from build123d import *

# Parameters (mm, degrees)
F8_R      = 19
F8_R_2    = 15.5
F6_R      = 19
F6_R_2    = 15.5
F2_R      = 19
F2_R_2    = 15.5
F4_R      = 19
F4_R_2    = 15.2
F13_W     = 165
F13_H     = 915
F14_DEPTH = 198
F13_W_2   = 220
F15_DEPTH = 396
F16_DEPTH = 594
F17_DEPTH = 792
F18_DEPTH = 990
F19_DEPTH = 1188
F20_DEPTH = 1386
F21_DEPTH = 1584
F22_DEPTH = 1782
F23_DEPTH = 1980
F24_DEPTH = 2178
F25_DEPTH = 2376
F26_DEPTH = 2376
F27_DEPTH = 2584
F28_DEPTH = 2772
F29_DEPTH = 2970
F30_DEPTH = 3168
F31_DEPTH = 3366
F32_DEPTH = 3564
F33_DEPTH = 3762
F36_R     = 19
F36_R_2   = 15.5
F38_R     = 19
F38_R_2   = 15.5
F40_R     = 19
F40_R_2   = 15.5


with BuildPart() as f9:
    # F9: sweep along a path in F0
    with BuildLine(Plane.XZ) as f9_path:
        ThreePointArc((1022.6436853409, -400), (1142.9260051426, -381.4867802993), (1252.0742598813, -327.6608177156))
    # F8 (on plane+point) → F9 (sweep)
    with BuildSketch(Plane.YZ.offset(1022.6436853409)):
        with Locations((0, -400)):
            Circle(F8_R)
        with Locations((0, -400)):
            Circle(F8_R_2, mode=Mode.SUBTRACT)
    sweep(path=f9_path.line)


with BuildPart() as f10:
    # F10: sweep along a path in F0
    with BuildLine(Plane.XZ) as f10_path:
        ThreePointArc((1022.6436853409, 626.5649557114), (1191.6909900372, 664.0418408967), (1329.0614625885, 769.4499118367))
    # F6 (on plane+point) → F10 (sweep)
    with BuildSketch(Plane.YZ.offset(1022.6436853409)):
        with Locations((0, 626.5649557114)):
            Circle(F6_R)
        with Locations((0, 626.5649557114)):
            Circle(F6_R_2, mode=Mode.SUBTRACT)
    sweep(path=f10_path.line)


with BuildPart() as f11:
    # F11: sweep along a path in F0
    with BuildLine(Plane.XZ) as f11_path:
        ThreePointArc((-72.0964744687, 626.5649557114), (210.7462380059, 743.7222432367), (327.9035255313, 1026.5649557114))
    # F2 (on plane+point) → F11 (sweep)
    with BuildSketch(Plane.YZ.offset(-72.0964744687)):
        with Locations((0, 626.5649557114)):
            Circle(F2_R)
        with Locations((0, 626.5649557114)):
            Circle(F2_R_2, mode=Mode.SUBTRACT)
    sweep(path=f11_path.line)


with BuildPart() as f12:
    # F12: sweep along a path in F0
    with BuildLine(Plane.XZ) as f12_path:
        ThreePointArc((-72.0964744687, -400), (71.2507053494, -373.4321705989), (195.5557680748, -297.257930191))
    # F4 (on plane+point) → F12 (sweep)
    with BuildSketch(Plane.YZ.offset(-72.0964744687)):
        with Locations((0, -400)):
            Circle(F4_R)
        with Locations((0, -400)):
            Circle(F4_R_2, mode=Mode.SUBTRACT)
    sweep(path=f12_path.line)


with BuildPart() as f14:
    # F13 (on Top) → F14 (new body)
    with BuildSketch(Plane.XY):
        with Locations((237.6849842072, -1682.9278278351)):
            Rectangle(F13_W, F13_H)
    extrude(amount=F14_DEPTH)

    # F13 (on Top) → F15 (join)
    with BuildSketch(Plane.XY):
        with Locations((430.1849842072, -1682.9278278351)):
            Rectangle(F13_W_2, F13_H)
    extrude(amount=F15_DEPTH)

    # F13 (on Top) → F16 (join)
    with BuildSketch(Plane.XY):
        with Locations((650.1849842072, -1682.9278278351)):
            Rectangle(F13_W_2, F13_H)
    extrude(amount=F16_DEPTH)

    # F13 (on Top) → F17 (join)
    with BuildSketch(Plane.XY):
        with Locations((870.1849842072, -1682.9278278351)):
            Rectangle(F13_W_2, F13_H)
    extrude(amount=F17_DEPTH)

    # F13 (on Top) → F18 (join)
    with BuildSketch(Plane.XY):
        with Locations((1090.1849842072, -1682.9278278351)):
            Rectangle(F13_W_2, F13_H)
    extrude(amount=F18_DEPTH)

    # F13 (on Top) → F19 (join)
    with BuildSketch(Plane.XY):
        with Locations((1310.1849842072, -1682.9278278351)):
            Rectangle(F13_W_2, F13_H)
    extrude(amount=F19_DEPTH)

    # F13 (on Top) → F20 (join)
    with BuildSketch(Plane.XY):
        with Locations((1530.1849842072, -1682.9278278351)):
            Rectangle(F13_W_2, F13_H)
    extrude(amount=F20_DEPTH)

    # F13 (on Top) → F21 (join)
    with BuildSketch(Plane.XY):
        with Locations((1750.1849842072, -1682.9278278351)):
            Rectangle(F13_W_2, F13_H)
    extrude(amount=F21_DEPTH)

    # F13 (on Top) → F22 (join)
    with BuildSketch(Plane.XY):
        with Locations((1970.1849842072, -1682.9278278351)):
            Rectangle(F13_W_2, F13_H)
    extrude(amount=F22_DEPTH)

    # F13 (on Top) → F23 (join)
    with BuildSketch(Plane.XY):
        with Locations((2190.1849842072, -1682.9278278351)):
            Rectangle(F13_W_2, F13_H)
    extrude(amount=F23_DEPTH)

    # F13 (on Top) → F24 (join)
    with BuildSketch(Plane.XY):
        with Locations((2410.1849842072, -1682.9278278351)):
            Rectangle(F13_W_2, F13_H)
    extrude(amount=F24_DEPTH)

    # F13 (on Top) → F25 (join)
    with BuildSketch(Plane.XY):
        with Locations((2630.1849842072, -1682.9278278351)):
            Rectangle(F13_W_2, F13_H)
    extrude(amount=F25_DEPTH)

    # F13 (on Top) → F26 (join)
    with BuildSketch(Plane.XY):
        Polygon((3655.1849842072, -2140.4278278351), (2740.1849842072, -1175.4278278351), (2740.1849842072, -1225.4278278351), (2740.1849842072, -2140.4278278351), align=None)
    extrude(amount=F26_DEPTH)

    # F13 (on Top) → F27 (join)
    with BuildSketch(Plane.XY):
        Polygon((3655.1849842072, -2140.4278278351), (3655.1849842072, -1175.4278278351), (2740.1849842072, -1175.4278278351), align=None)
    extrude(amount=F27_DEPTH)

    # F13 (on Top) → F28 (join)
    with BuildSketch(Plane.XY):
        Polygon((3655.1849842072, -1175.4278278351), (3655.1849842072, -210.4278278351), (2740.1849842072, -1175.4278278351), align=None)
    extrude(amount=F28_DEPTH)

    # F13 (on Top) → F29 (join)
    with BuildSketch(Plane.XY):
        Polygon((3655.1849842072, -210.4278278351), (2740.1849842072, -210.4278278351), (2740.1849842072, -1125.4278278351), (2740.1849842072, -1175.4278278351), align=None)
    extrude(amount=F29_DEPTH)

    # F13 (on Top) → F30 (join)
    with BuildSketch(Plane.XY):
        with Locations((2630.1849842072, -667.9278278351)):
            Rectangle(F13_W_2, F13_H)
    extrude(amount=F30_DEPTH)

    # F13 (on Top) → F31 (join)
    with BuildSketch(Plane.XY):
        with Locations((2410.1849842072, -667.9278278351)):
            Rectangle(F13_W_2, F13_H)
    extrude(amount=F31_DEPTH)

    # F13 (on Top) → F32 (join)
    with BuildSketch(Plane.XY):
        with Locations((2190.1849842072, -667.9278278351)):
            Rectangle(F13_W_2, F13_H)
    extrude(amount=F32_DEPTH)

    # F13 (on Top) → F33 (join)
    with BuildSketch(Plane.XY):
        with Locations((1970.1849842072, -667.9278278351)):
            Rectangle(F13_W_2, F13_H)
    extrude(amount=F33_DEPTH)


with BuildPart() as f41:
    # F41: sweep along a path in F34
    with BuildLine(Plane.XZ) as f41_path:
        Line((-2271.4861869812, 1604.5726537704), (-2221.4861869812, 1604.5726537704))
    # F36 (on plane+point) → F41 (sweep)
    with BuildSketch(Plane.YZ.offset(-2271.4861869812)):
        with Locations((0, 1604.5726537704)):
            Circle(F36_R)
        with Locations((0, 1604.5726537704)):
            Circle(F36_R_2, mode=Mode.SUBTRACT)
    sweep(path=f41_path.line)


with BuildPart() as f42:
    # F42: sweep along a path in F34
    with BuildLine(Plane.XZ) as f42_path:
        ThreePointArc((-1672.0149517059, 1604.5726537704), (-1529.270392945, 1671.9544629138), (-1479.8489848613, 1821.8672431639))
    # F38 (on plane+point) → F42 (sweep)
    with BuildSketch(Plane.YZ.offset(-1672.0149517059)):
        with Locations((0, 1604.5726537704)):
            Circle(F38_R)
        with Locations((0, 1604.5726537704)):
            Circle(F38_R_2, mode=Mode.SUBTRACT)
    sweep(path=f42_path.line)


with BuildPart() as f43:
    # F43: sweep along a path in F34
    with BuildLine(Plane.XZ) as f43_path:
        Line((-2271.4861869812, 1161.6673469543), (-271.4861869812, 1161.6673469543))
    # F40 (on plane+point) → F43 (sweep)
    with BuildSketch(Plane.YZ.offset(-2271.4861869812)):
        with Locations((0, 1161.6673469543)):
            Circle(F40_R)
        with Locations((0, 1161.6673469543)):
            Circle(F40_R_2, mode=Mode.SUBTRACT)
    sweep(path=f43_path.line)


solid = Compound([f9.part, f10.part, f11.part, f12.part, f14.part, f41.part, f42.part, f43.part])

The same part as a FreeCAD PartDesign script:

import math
import FreeCAD as App
import Part
import Sketcher
from FreeCAD import Vector

doc = App.newDocument("Part")
body = doc.addObject("PartDesign::Body", "Body")

sketch1 = body.newObject("Sketcher::SketchObject", "Sketch")
sketch1.AttachmentSupport = (doc.getObject("YZ_Plane"), [""])
sketch1.MapMode = "FlatFace"
sketch1.AttachmentOffset = App.Placement(Vector(0, 0, 1022.643685), App.Rotation())
sketch1.addGeometry(Part.Circle(Vector(0, -400, 0), Vector(0, 0, 1), 19), False)
sketch1.addGeometry(Part.Circle(Vector(0, -400, 0), Vector(0, 0, 1), 15.5), False)
sketch1.addConstraint(Sketcher.Constraint("Coincident", 1, 3, 0, 3))
sketch1.addConstraint(Sketcher.Constraint("PointOnObject", 0, 3, -2))
sketch1.addConstraint(Sketcher.Constraint("Diameter", 0, 38.0))
sketch1.addConstraint(Sketcher.Constraint("Diameter", 1, 31.0))
sketch1.addConstraint(Sketcher.Constraint("DistanceY", 0, 3, -1, 1, 400.0))

sketch2 = body.newObject("Sketcher::SketchObject", "Sketch001")
sketch2.AttachmentSupport = (doc.getObject("XZ_Plane"), [""])
sketch2.MapMode = "FlatFace"
sketch2.addGeometry(Part.ArcOfCircle(Part.Circle(Vector(1022.643685, 0, 0), Vector(0, 0, 1), 400), math.radians(-90), math.radians(-55)), False)
sketch2.addConstraint(Sketcher.Constraint("PointOnObject", 0, 3, -1))
sketch2.addConstraint(Sketcher.Constraint("Radius", 0, 400.0))
sketch2.addConstraint(Sketcher.Constraint("DistanceX", -1, 1, 0, 2, 1252.07426))
sketch2.addConstraint(Sketcher.Constraint("DistanceX", -1, 1, 0, 3, 1022.643685))
sketch2.addConstraint(Sketcher.Constraint("DistanceX", -1, 1, 0, 1, 1022.643685))
doc.recompute()

additivepipe = body.newObject("PartDesign::AdditivePipe", "AdditivePipe")
additivepipe.Profile = sketch1
additivepipe.Spine = (sketch2, ["Edge1"])
body2 = doc.addObject("PartDesign::Body", "Body001")

sketch3 = body2.newObject("Sketcher::SketchObject", "Sketch002")
sketch3.AttachmentSupport = (doc.getObject("YZ_Plane001"), [""])
sketch3.MapMode = "FlatFace"
sketch3.AttachmentOffset = App.Placement(Vector(0, 0, 1022.643685), App.Rotation())
sketch3.addGeometry(Part.Circle(Vector(0, 626.564956, 0), Vector(0, 0, 1), 19), False)
sketch3.addGeometry(Part.Circle(Vector(0, 626.564956, 0), Vector(0, 0, 1), 15.5), False)
sketch3.addConstraint(Sketcher.Constraint("Coincident", 1, 3, 0, 3))
sketch3.addConstraint(Sketcher.Constraint("PointOnObject", 0, 3, -2))
sketch3.addConstraint(Sketcher.Constraint("Diameter", 0, 38.0))
sketch3.addConstraint(Sketcher.Constraint("Diameter", 1, 31.0))
sketch3.addConstraint(Sketcher.Constraint("DistanceY", -1, 1, 0, 3, 626.564956))

sketch4 = body2.newObject("Sketcher::SketchObject", "Sketch003")
sketch4.AttachmentSupport = (doc.getObject("XZ_Plane001"), [""])
sketch4.MapMode = "FlatFace"
sketch4.addGeometry(Part.ArcOfCircle(Part.Circle(Vector(1022.643685, 1026.564956, 0), Vector(0, 0, 1), 400), math.radians(-90), math.radians(-40)), False)
sketch4.addConstraint(Sketcher.Constraint("Radius", 0, 400.0))
sketch4.addConstraint(Sketcher.Constraint("DistanceY", -1, 1, 0, 2, 769.449912))
sketch4.addConstraint(Sketcher.Constraint("DistanceX", -1, 1, 0, 3, 1022.643685))
sketch4.addConstraint(Sketcher.Constraint("DistanceY", -1, 1, 0, 3, 1026.564956))
sketch4.addConstraint(Sketcher.Constraint("DistanceX", -1, 1, 0, 1, 1022.643685))
doc.recompute()

additivepipe2 = body2.newObject("PartDesign::AdditivePipe", "AdditivePipe001")
additivepipe2.Profile = sketch3
additivepipe2.Spine = (sketch4, ["Edge1"])
body3 = doc.addObject("PartDesign::Body", "Body002")

sketch5 = body3.newObject("Sketcher::SketchObject", "Sketch004")
sketch5.AttachmentSupport = (doc.getObject("YZ_Plane002"), [""])
sketch5.MapMode = "FlatFace"
sketch5.AttachmentOffset = App.Placement(Vector(0, 0, -72.096474), App.Rotation())
sketch5.addGeometry(Part.Circle(Vector(0, 626.564956, 0), Vector(0, 0, 1), 19), False)
sketch5.addGeometry(Part.Circle(Vector(0, 626.564956, 0), Vector(0, 0, 1), 15.5), False)
sketch5.addConstraint(Sketcher.Constraint("Coincident", 1, 3, 0, 3))
sketch5.addConstraint(Sketcher.Constraint("PointOnObject", 0, 3, -2))
sketch5.addConstraint(Sketcher.Constraint("Diameter", 0, 38.0))
sketch5.addConstraint(Sketcher.Constraint("Diameter", 1, 31.0))
sketch5.addConstraint(Sketcher.Constraint("DistanceY", -1, 1, 0, 3, 626.564956))

sketch6 = body3.newObject("Sketcher::SketchObject", "Sketch005")
sketch6.AttachmentSupport = (doc.getObject("XZ_Plane002"), [""])
sketch6.MapMode = "FlatFace"
sketch6.addGeometry(Part.ArcOfCircle(Part.Circle(Vector(-72.096474, 1026.564956, 0), Vector(0, 0, 1), 400), math.radians(-90), math.radians(0)), False)
sketch6.addConstraint(Sketcher.Constraint("Radius", 0, 400.0))
sketch6.addConstraint(Sketcher.Constraint("DistanceX", 0, 1, 0, 2, 400.0))
sketch6.addConstraint(Sketcher.Constraint("DistanceY", 0, 1, 0, 2, 400.0))
sketch6.addConstraint(Sketcher.Constraint("DistanceX", 0, 3, -1, 1, 72.096474))
sketch6.addConstraint(Sketcher.Constraint("DistanceY", -1, 1, 0, 3, 1026.564956))
doc.recompute()

additivepipe3 = body3.newObject("PartDesign::AdditivePipe", "AdditivePipe002")
additivepipe3.Profile = sketch5
additivepipe3.Spine = (sketch6, ["Edge1"])
body4 = doc.addObject("PartDesign::Body", "Body003")

sketch7 = body4.newObject("Sketcher::SketchObject", "Sketch006")
sketch7.AttachmentSupport = (doc.getObject("YZ_Plane003"), [""])
sketch7.MapMode = "FlatFace"
sketch7.AttachmentOffset = App.Placement(Vector(0, 0, -72.096474), App.Rotation())
sketch7.addGeometry(Part.Circle(Vector(0, -400, 0), Vector(0, 0, 1), 19), False)
sketch7.addGeometry(Part.Circle(Vector(0, -400, 0), Vector(0, 0, 1), 15.2), False)
sketch7.addConstraint(Sketcher.Constraint("Coincident", 1, 3, 0, 3))
sketch7.addConstraint(Sketcher.Constraint("PointOnObject", 0, 3, -2))
sketch7.addConstraint(Sketcher.Constraint("Diameter", 0, 38.0))
sketch7.addConstraint(Sketcher.Constraint("Diameter", 1, 30.4))
sketch7.addConstraint(Sketcher.Constraint("DistanceY", 0, 3, -1, 1, 400.0))

sketch8 = body4.newObject("Sketcher::SketchObject", "Sketch007")
sketch8.AttachmentSupport = (doc.getObject("XZ_Plane003"), [""])
sketch8.MapMode = "FlatFace"
sketch8.addGeometry(Part.ArcOfCircle(Part.Circle(Vector(-72.096474, 0, 0), Vector(0, 0, 1), 400), math.radians(-90), math.radians(-48)), False)
sketch8.addConstraint(Sketcher.Constraint("PointOnObject", 0, 3, -1))
sketch8.addConstraint(Sketcher.Constraint("Radius", 0, 400.0))
sketch8.addConstraint(Sketcher.Constraint("DistanceX", -1, 1, 0, 2, 195.555768))
sketch8.addConstraint(Sketcher.Constraint("DistanceY", 0, 2, -1, 1, 297.25793))
sketch8.addConstraint(Sketcher.Constraint("DistanceX", 0, 1, -1, 1, 72.096474))
doc.recompute()

additivepipe4 = body4.newObject("PartDesign::AdditivePipe", "AdditivePipe003")
additivepipe4.Profile = sketch7
additivepipe4.Spine = (sketch8, ["Edge1"])
body5 = doc.addObject("PartDesign::Body", "Body004")

sketch9 = body5.newObject("Sketcher::SketchObject", "Sketch008")
sketch9.AttachmentSupport = (doc.getObject("XY_Plane004"), [""])
sketch9.MapMode = "FlatFace"
sketch9.addGeometry(Part.LineSegment(Vector(155.184984, -1225.427828, 0), Vector(155.184984, -2140.427828, 0)), False)
sketch9.addGeometry(Part.LineSegment(Vector(155.184984, -2140.427828, 0), Vector(320.184984, -2140.427828, 0)), False)
sketch9.addGeometry(Part.LineSegment(Vector(320.184984, -2140.427828, 0), Vector(320.184984, -1225.427828, 0)), False)
sketch9.addGeometry(Part.LineSegment(Vector(320.184984, -1225.427828, 0), Vector(155.184984, -1225.427828, 0)), False)
sketch9.addConstraint(Sketcher.Constraint("Coincident", 0, 2, 1, 1))
sketch9.addConstraint(Sketcher.Constraint("Coincident", 1, 2, 2, 1))
sketch9.addConstraint(Sketcher.Constraint("Coincident", 2, 2, 3, 1))
sketch9.addConstraint(Sketcher.Constraint("Coincident", 3, 2, 0, 1))
sketch9.addConstraint(Sketcher.Constraint("Vertical", 0))
sketch9.addConstraint(Sketcher.Constraint("Horizontal", 1))
sketch9.addConstraint(Sketcher.Constraint("Vertical", 2))
sketch9.addConstraint(Sketcher.Constraint("Horizontal", 3))
sketch9.addConstraint(Sketcher.Constraint("DistanceX", 1, 1, 1, 2, 165.0))
sketch9.addConstraint(Sketcher.Constraint("DistanceY", 0, 2, 0, 1, 915.0))
sketch9.addConstraint(Sketcher.Constraint("DistanceX", -1, 1, 0, 2, 155.184984))
sketch9.addConstraint(Sketcher.Constraint("DistanceY", 0, 2, -1, 1, 2140.427828))
pad1 = body5.newObject("PartDesign::Pad", "Pad")
pad1.Profile = sketch9
pad1.Length = 198

sketch10 = body5.newObject("Sketcher::SketchObject", "Sketch009")
sketch10.AttachmentSupport = (doc.getObject("XY_Plane004"), [""])
sketch10.MapMode = "FlatFace"
sketch10.addGeometry(Part.LineSegment(Vector(320.184984, -1225.427828, 0), Vector(320.184984, -2140.427828, 0)), False)
sketch10.addGeometry(Part.LineSegment(Vector(320.184984, -2140.427828, 0), Vector(540.184984, -2140.427828, 0)), False)
sketch10.addGeometry(Part.LineSegment(Vector(540.184984, -2140.427828, 0), Vector(540.184984, -1225.427828, 0)), False)
sketch10.addGeometry(Part.LineSegment(Vector(540.184984, -1225.427828, 0), Vector(320.184984, -1225.427828, 0)), False)
sketch10.addConstraint(Sketcher.Constraint("Coincident", 0, 2, 1, 1))
sketch10.addConstraint(Sketcher.Constraint("Coincident", 1, 2, 2, 1))
sketch10.addConstraint(Sketcher.Constraint("Coincident", 2, 2, 3, 1))
sketch10.addConstraint(Sketcher.Constraint("Coincident", 3, 2, 0, 1))
sketch10.addConstraint(Sketcher.Constraint("Vertical", 0))
sketch10.addConstraint(Sketcher.Constraint("Horizontal", 1))
sketch10.addConstraint(Sketcher.Constraint("Vertical", 2))
sketch10.addConstraint(Sketcher.Constraint("Horizontal", 3))
sketch10.addConstraint(Sketcher.Constraint("DistanceX", 1, 1, 1, 2, 220.0))
sketch10.addConstraint(Sketcher.Constraint("DistanceY", 0, 2, 0, 1, 915.0))
sketch10.addConstraint(Sketcher.Constraint("DistanceX", -1, 1, 0, 2, 320.184984))
sketch10.addConstraint(Sketcher.Constraint("DistanceY", 0, 2, -1, 1, 2140.427828))
pad2 = body5.newObject("PartDesign::Pad", "Pad001")
pad2.Profile = sketch10
pad2.Length = 396

sketch11 = body5.newObject("Sketcher::SketchObject", "Sketch010")
sketch11.AttachmentSupport = (doc.getObject("XY_Plane004"), [""])
sketch11.MapMode = "FlatFace"
sketch11.addGeometry(Part.LineSegment(Vector(540.184984, -1225.427828, 0), Vector(540.184984, -2140.427828, 0)), False)
sketch11.addGeometry(Part.LineSegment(Vector(540.184984, -2140.427828, 0), Vector(760.184984, -2140.427828, 0)), False)
sketch11.addGeometry(Part.LineSegment(Vector(760.184984, -2140.427828, 0), Vector(760.184984, -1225.427828, 0)), False)
sketch11.addGeometry(Part.LineSegment(Vector(760.184984, -1225.427828, 0), Vector(540.184984, -1225.427828, 0)), False)
sketch11.addConstraint(Sketcher.Constraint("Coincident", 0, 2, 1, 1))
sketch11.addConstraint(Sketcher.Constraint("Coincident", 1, 2, 2, 1))
sketch11.addConstraint(Sketcher.Constraint("Coincident", 2, 2, 3, 1))
sketch11.addConstraint(Sketcher.Constraint("Coincident", 3, 2, 0, 1))
sketch11.addConstraint(Sketcher.Constraint("Vertical", 0))
sketch11.addConstraint(Sketcher.Constraint("Horizontal", 1))
sketch11.addConstraint(Sketcher.Constraint("Vertical", 2))
sketch11.addConstraint(Sketcher.Constraint("Horizontal", 3))
sketch11.addConstraint(Sketcher.Constraint("DistanceX", 1, 1, 1, 2, 220.0))
sketch11.addConstraint(Sketcher.Constraint("DistanceY", 0, 2, 0, 1, 915.0))
sketch11.addConstraint(Sketcher.Constraint("DistanceX", -1, 1, 0, 2, 540.184984))
sketch11.addConstraint(Sketcher.Constraint("DistanceY", 0, 2, -1, 1, 2140.427828))
pad3 = body5.newObject("PartDesign::Pad", "Pad002")
pad3.Profile = sketch11
pad3.Length = 594

sketch12 = body5.newObject("Sketcher::SketchObject", "Sketch011")
sketch12.AttachmentSupport = (doc.getObject("XY_Plane004"), [""])
sketch12.MapMode = "FlatFace"
sketch12.addGeometry(Part.LineSegment(Vector(760.184984, -1225.427828, 0), Vector(760.184984, -2140.427828, 0)), False)
sketch12.addGeometry(Part.LineSegment(Vector(760.184984, -2140.427828, 0), Vector(980.184984, -2140.427828, 0)), False)
sketch12.addGeometry(Part.LineSegment(Vector(980.184984, -2140.427828, 0), Vector(980.184984, -1225.427828, 0)), False)
sketch12.addGeometry(Part.LineSegment(Vector(980.184984, -1225.427828, 0), Vector(760.184984, -1225.427828, 0)), False)
sketch12.addConstraint(Sketcher.Constraint("Coincident", 0, 2, 1, 1))
sketch12.addConstraint(Sketcher.Constraint("Coincident", 1, 2, 2, 1))
sketch12.addConstraint(Sketcher.Constraint("Coincident", 2, 2, 3, 1))
sketch12.addConstraint(Sketcher.Constraint("Coincident", 3, 2, 0, 1))
sketch12.addConstraint(Sketcher.Constraint("Vertical", 0))
sketch12.addConstraint(Sketcher.Constraint("Horizontal", 1))
sketch12.addConstraint(Sketcher.Constraint("Vertical", 2))
sketch12.addConstraint(Sketcher.Constraint("Horizontal", 3))
sketch12.addConstraint(Sketcher.Constraint("DistanceX", 1, 1, 1, 2, 220.0))
sketch12.addConstraint(Sketcher.Constraint("DistanceY", 0, 2, 0, 1, 915.0))
sketch12.addConstraint(Sketcher.Constraint("DistanceX", -1, 1, 0, 2, 760.184984))
sketch12.addConstraint(Sketcher.Constraint("DistanceY", 0, 2, -1, 1, 2140.427828))
pad4 = body5.newObject("PartDesign::Pad", "Pad003")
pad4.Profile = sketch12
pad4.Length = 792

sketch13 = body5.newObject("Sketcher::SketchObject", "Sketch012")
sketch13.AttachmentSupport = (doc.getObject("XY_Plane004"), [""])
sketch13.MapMode = "FlatFace"
sketch13.addGeometry(Part.LineSegment(Vector(980.184984, -1225.427828, 0), Vector(980.184984, -2140.427828, 0)), False)
sketch13.addGeometry(Part.LineSegment(Vector(980.184984, -2140.427828, 0), Vector(1200.184984, -2140.427828, 0)), False)
sketch13.addGeometry(Part.LineSegment(Vector(1200.184984, -2140.427828, 0), Vector(1200.184984, -1225.427828, 0)), False)
sketch13.addGeometry(Part.LineSegment(Vector(1200.184984, -1225.427828, 0), Vector(980.184984, -1225.427828, 0)), False)
sketch13.addConstraint(Sketcher.Constraint("Coincident", 0, 2, 1, 1))
sketch13.addConstraint(Sketcher.Constraint("Coincident", 1, 2, 2, 1))
sketch13.addConstraint(Sketcher.Constraint("Coincident", 2, 2, 3, 1))
sketch13.addConstraint(Sketcher.Constraint("Coincident", 3, 2, 0, 1))
sketch13.addConstraint(Sketcher.Constraint("Vertical", 0))
sketch13.addConstraint(Sketcher.Constraint("Horizontal", 1))
sketch13.addConstraint(Sketcher.Constraint("Vertical", 2))
sketch13.addConstraint(Sketcher.Constraint("Horizontal", 3))
sketch13.addConstraint(Sketcher.Constraint("DistanceX", 1, 1, 1, 2, 220.0))
sketch13.addConstraint(Sketcher.Constraint("DistanceY", 0, 2, 0, 1, 915.0))
sketch13.addConstraint(Sketcher.Constraint("DistanceX", -1, 1, 0, 2, 980.184984))
sketch13.addConstraint(Sketcher.Constraint("DistanceY", 0, 2, -1, 1, 2140.427828))
pad5 = body5.newObject("PartDesign::Pad", "Pad004")
pad5.Profile = sketch13
pad5.Length = 990

sketch14 = body5.newObject("Sketcher::SketchObject", "Sketch013")
sketch14.AttachmentSupport = (doc.getObject("XY_Plane004"), [""])
sketch14.MapMode = "FlatFace"
sketch14.addGeometry(Part.LineSegment(Vector(1200.184984, -1225.427828, 0), Vector(1200.184984, -2140.427828, 0)), False)
sketch14.addGeometry(Part.LineSegment(Vector(1200.184984, -2140.427828, 0), Vector(1420.184984, -2140.427828, 0)), False)
sketch14.addGeometry(Part.LineSegment(Vector(1420.184984, -2140.427828, 0), Vector(1420.184984, -1225.427828, 0)), False)
sketch14.addGeometry(Part.LineSegment(Vector(1420.184984, -1225.427828, 0), Vector(1200.184984, -1225.427828, 0)), False)
sketch14.addConstraint(Sketcher.Constraint("Coincident", 0, 2, 1, 1))
sketch14.addConstraint(Sketcher.Constraint("Coincident", 1, 2, 2, 1))
sketch14.addConstraint(Sketcher.Constraint("Coincident", 2, 2, 3, 1))
sketch14.addConstraint(Sketcher.Constraint("Coincident", 3, 2, 0, 1))
sketch14.addConstraint(Sketcher.Constraint("Vertical", 0))
sketch14.addConstraint(Sketcher.Constraint("Horizontal", 1))
sketch14.addConstraint(Sketcher.Constraint("Vertical", 2))
sketch14.addConstraint(Sketcher.Constraint("Horizontal", 3))
sketch14.addConstraint(Sketcher.Constraint("DistanceX", 1, 1, 1, 2, 220.0))
sketch14.addConstraint(Sketcher.Constraint("DistanceY", 0, 2, 0, 1, 915.0))
sketch14.addConstraint(Sketcher.Constraint("DistanceX", -1, 1, 0, 2, 1200.184984))
sketch14.addConstraint(Sketcher.Constraint("DistanceY", 0, 2, -1, 1, 2140.427828))
pad6 = body5.newObject("PartDesign::Pad", "Pad005")
pad6.Profile = sketch14
pad6.Length = 1188

sketch15 = body5.newObject("Sketcher::SketchObject", "Sketch014")
sketch15.AttachmentSupport = (doc.getObject("XY_Plane004"), [""])
sketch15.MapMode = "FlatFace"
sketch15.addGeometry(Part.LineSegment(Vector(1420.184984, -1225.427828, 0), Vector(1420.184984, -2140.427828, 0)), False)
sketch15.addGeometry(Part.LineSegment(Vector(1420.184984, -2140.427828, 0), Vector(1640.184984, -2140.427828, 0)), False)
sketch15.addGeometry(Part.LineSegment(Vector(1640.184984, -2140.427828, 0), Vector(1640.184984, -1225.427828, 0)), False)
sketch15.addGeometry(Part.LineSegment(Vector(1640.184984, -1225.427828, 0), Vector(1420.184984, -1225.427828, 0)), False)
sketch15.addConstraint(Sketcher.Constraint("Coincident", 0, 2, 1, 1))
sketch15.addConstraint(Sketcher.Constraint("Coincident", 1, 2, 2, 1))
sketch15.addConstraint(Sketcher.Constraint("Coincident", 2, 2, 3, 1))
sketch15.addConstraint(Sketcher.Constraint("Coincident", 3, 2, 0, 1))
sketch15.addConstraint(Sketcher.Constraint("Vertical", 0))
sketch15.addConstraint(Sketcher.Constraint("Horizontal", 1))
sketch15.addConstraint(Sketcher.Constraint("Vertical", 2))
sketch15.addConstraint(Sketcher.Constraint("Horizontal", 3))
sketch15.addConstraint(Sketcher.Constraint("DistanceX", 1, 1, 1, 2, 220.0))
sketch15.addConstraint(Sketcher.Constraint("DistanceY", 0, 2, 0, 1, 915.0))
sketch15.addConstraint(Sketcher.Constraint("DistanceX", -1, 1, 0, 2, 1420.184984))
sketch15.addConstraint(Sketcher.Constraint("DistanceY", 0, 2, -1, 1, 2140.427828))
pad7 = body5.newObject("PartDesign::Pad", "Pad006")
pad7.Profile = sketch15
pad7.Length = 1386

sketch16 = body5.newObject("Sketcher::SketchObject", "Sketch015")
sketch16.AttachmentSupport = (doc.getObject("XY_Plane004"), [""])
sketch16.MapMode = "FlatFace"
sketch16.addGeometry(Part.LineSegment(Vector(1640.184984, -1225.427828, 0), Vector(1640.184984, -2140.427828, 0)), False)
sketch16.addGeometry(Part.LineSegment(Vector(1640.184984, -2140.427828, 0), Vector(1860.184984, -2140.427828, 0)), False)
sketch16.addGeometry(Part.LineSegment(Vector(1860.184984, -2140.427828, 0), Vector(1860.184984, -1225.427828, 0)), False)
sketch16.addGeometry(Part.LineSegment(Vector(1860.184984, -1225.427828, 0), Vector(1640.184984, -1225.427828, 0)), False)
sketch16.addConstraint(Sketcher.Constraint("Coincident", 0, 2, 1, 1))
sketch16.addConstraint(Sketcher.Constraint("Coincident", 1, 2, 2, 1))
sketch16.addConstraint(Sketcher.Constraint("Coincident", 2, 2, 3, 1))
sketch16.addConstraint(Sketcher.Constraint("Coincident", 3, 2, 0, 1))
sketch16.addConstraint(Sketcher.Constraint("Vertical", 0))
sketch16.addConstraint(Sketcher.Constraint("Horizontal", 1))
sketch16.addConstraint(Sketcher.Constraint("Vertical", 2))
sketch16.addConstraint(Sketcher.Constraint("Horizontal", 3))
sketch16.addConstraint(Sketcher.Constraint("DistanceX", 1, 1, 1, 2, 220.0))
sketch16.addConstraint(Sketcher.Constraint("DistanceY", 0, 2, 0, 1, 915.0))
sketch16.addConstraint(Sketcher.Constraint("DistanceX", -1, 1, 0, 2, 1640.184984))
sketch16.addConstraint(Sketcher.Constraint("DistanceY", 0, 2, -1, 1, 2140.427828))
pad8 = body5.newObject("PartDesign::Pad", "Pad007")
pad8.Profile = sketch16
pad8.Length = 1584

sketch17 = body5.newObject("Sketcher::SketchObject", "Sketch016")
sketch17.AttachmentSupport = (doc.getObject("XY_Plane004"), [""])
sketch17.MapMode = "FlatFace"
sketch17.addGeometry(Part.LineSegment(Vector(1860.184984, -1225.427828, 0), Vector(1860.184984, -2140.427828, 0)), False)
sketch17.addGeometry(Part.LineSegment(Vector(1860.184984, -2140.427828, 0), Vector(2080.184984, -2140.427828, 0)), False)
sketch17.addGeometry(Part.LineSegment(Vector(2080.184984, -2140.427828, 0), Vector(2080.184984, -1225.427828, 0)), False)
sketch17.addGeometry(Part.LineSegment(Vector(2080.184984, -1225.427828, 0), Vector(1860.184984, -1225.427828, 0)), False)
sketch17.addConstraint(Sketcher.Constraint("Coincident", 0, 2, 1, 1))
sketch17.addConstraint(Sketcher.Constraint("Coincident", 1, 2, 2, 1))
sketch17.addConstraint(Sketcher.Constraint("Coincident", 2, 2, 3, 1))
sketch17.addConstraint(Sketcher.Constraint("Coincident", 3, 2, 0, 1))
sketch17.addConstraint(Sketcher.Constraint("Vertical", 0))
sketch17.addConstraint(Sketcher.Constraint("Horizontal", 1))
sketch17.addConstraint(Sketcher.Constraint("Vertical", 2))
sketch17.addConstraint(Sketcher.Constraint("Horizontal", 3))
sketch17.addConstraint(Sketcher.Constraint("DistanceX", 1, 1, 1, 2, 220.0))
sketch17.addConstraint(Sketcher.Constraint("DistanceY", 0, 2, 0, 1, 915.0))
sketch17.addConstraint(Sketcher.Constraint("DistanceX", -1, 1, 0, 2, 1860.184984))
sketch17.addConstraint(Sketcher.Constraint("DistanceY", 0, 2, -1, 1, 2140.427828))
pad9 = body5.newObject("PartDesign::Pad", "Pad008")
pad9.Profile = sketch17
pad9.Length = 1782

sketch18 = body5.newObject("Sketcher::SketchObject", "Sketch017")
sketch18.AttachmentSupport = (doc.getObject("XY_Plane004"), [""])
sketch18.MapMode = "FlatFace"
sketch18.addGeometry(Part.LineSegment(Vector(2080.184984, -1225.427828, 0), Vector(2080.184984, -2140.427828, 0)), False)
sketch18.addGeometry(Part.LineSegment(Vector(2080.184984, -2140.427828, 0), Vector(2300.184984, -2140.427828, 0)), False)
sketch18.addGeometry(Part.LineSegment(Vector(2300.184984, -2140.427828, 0), Vector(2300.184984, -1225.427828, 0)), False)
sketch18.addGeometry(Part.LineSegment(Vector(2300.184984, -1225.427828, 0), Vector(2080.184984, -1225.427828, 0)), False)
sketch18.addConstraint(Sketcher.Constraint("Coincident", 0, 2, 1, 1))
sketch18.addConstraint(Sketcher.Constraint("Coincident", 1, 2, 2, 1))
sketch18.addConstraint(Sketcher.Constraint("Coincident", 2, 2, 3, 1))
sketch18.addConstraint(Sketcher.Constraint("Coincident", 3, 2, 0, 1))
sketch18.addConstraint(Sketcher.Constraint("Vertical", 0))
sketch18.addConstraint(Sketcher.Constraint("Horizontal", 1))
sketch18.addConstraint(Sketcher.Constraint("Vertical", 2))
sketch18.addConstraint(Sketcher.Constraint("Horizontal", 3))
sketch18.addConstraint(Sketcher.Constraint("DistanceX", 1, 1, 1, 2, 220.0))
sketch18.addConstraint(Sketcher.Constraint("DistanceY", 0, 2, 0, 1, 915.0))
sketch18.addConstraint(Sketcher.Constraint("DistanceX", -1, 1, 0, 2, 2080.184984))
sketch18.addConstraint(Sketcher.Constraint("DistanceY", 0, 2, -1, 1, 2140.427828))
pad10 = body5.newObject("PartDesign::Pad", "Pad009")
pad10.Profile = sketch18
pad10.Length = 1980

sketch19 = body5.newObject("Sketcher::SketchObject", "Sketch018")
sketch19.AttachmentSupport = (doc.getObject("XY_Plane004"), [""])
sketch19.MapMode = "FlatFace"
sketch19.addGeometry(Part.LineSegment(Vector(2300.184984, -1225.427828, 0), Vector(2300.184984, -2140.427828, 0)), False)
sketch19.addGeometry(Part.LineSegment(Vector(2300.184984, -2140.427828, 0), Vector(2520.184984, -2140.427828, 0)), False)
sketch19.addGeometry(Part.LineSegment(Vector(2520.184984, -2140.427828, 0), Vector(2520.184984, -1225.427828, 0)), False)
sketch19.addGeometry(Part.LineSegment(Vector(2520.184984, -1225.427828, 0), Vector(2300.184984, -1225.427828, 0)), False)
sketch19.addConstraint(Sketcher.Constraint("Coincident", 0, 2, 1, 1))
sketch19.addConstraint(Sketcher.Constraint("Coincident", 1, 2, 2, 1))
sketch19.addConstraint(Sketcher.Constraint("Coincident", 2, 2, 3, 1))
sketch19.addConstraint(Sketcher.Constraint("Coincident", 3, 2, 0, 1))
sketch19.addConstraint(Sketcher.Constraint("Vertical", 0))
sketch19.addConstraint(Sketcher.Constraint("Horizontal", 1))
sketch19.addConstraint(Sketcher.Constraint("Vertical", 2))
sketch19.addConstraint(Sketcher.Constraint("Horizontal", 3))
sketch19.addConstraint(Sketcher.Constraint("DistanceX", 1, 1, 1, 2, 220.0))
sketch19.addConstraint(Sketcher.Constraint("DistanceY", 0, 2, 0, 1, 915.0))
sketch19.addConstraint(Sketcher.Constraint("DistanceX", -1, 1, 0, 2, 2300.184984))
sketch19.addConstraint(Sketcher.Constraint("DistanceY", 0, 2, -1, 1, 2140.427828))
pad11 = body5.newObject("PartDesign::Pad", "Pad010")
pad11.Profile = sketch19
pad11.Length = 2178

sketch20 = body5.newObject("Sketcher::SketchObject", "Sketch019")
sketch20.AttachmentSupport = (doc.getObject("XY_Plane004"), [""])
sketch20.MapMode = "FlatFace"
sketch20.addGeometry(Part.LineSegment(Vector(2520.184984, -1225.427828, 0), Vector(2520.184984, -2140.427828, 0)), False)
sketch20.addGeometry(Part.LineSegment(Vector(2520.184984, -2140.427828, 0), Vector(2740.184984, -2140.427828, 0)), False)
sketch20.addGeometry(Part.LineSegment(Vector(2740.184984, -2140.427828, 0), Vector(2740.184984, -1225.427828, 0)), False)
sketch20.addGeometry(Part.LineSegment(Vector(2740.184984, -1225.427828, 0), Vector(2520.184984, -1225.427828, 0)), False)
sketch20.addConstraint(Sketcher.Constraint("Coincident", 0, 2, 1, 1))
sketch20.addConstraint(Sketcher.Constraint("Coincident", 1, 2, 2, 1))
sketch20.addConstraint(Sketcher.Constraint("Coincident", 2, 2, 3, 1))
sketch20.addConstraint(Sketcher.Constraint("Coincident", 3, 2, 0, 1))
sketch20.addConstraint(Sketcher.Constraint("Vertical", 0))
sketch20.addConstraint(Sketcher.Constraint("Horizontal", 1))
sketch20.addConstraint(Sketcher.Constraint("Vertical", 2))
sketch20.addConstraint(Sketcher.Constraint("Horizontal", 3))
sketch20.addConstraint(Sketcher.Constraint("DistanceX", 1, 1, 1, 2, 220.0))
sketch20.addConstraint(Sketcher.Constraint("DistanceY", 0, 2, 0, 1, 915.0))
sketch20.addConstraint(Sketcher.Constraint("DistanceX", -1, 1, 0, 2, 2520.184984))
sketch20.addConstraint(Sketcher.Constraint("DistanceY", 0, 2, -1, 1, 2140.427828))
pad12 = body5.newObject("PartDesign::Pad", "Pad011")
pad12.Profile = sketch20
pad12.Length = 2376

sketch21 = body5.newObject("Sketcher::SketchObject", "Sketch020")
sketch21.AttachmentSupport = (doc.getObject("XY_Plane004"), [""])
sketch21.MapMode = "FlatFace"
sketch21.addGeometry(Part.LineSegment(Vector(3655.184984, -2140.427828, 0), Vector(2740.184984, -1175.427828, 0)), False)
sketch21.addGeometry(Part.LineSegment(Vector(2740.184984, -1175.427828, 0), Vector(2740.184984, -2140.427828, 0)), False)
sketch21.addGeometry(Part.LineSegment(Vector(2740.184984, -2140.427828, 0), Vector(3655.184984, -2140.427828, 0)), False)
sketch21.addConstraint(Sketcher.Constraint("Coincident", 0, 2, 1, 1))
sketch21.addConstraint(Sketcher.Constraint("Coincident", 1, 2, 2, 1))
sketch21.addConstraint(Sketcher.Constraint("Coincident", 2, 2, 0, 1))
sketch21.addConstraint(Sketcher.Constraint("Vertical", 1))
sketch21.addConstraint(Sketcher.Constraint("Horizontal", 2))
sketch21.addConstraint(Sketcher.Constraint("DistanceX", 2, 1, 2, 2, 915.0))
sketch21.addConstraint(Sketcher.Constraint("DistanceY", 1, 2, 1, 1, 965.0))
sketch21.addConstraint(Sketcher.Constraint("DistanceX", -1, 1, 0, 2, 2740.184984))
sketch21.addConstraint(Sketcher.Constraint("DistanceY", 0, 2, -1, 1, 1175.427828))
pad13 = body5.newObject("PartDesign::Pad", "Pad012")
pad13.Profile = sketch21
pad13.Length = 2376

sketch22 = body5.newObject("Sketcher::SketchObject", "Sketch021")
sketch22.AttachmentSupport = (doc.getObject("XY_Plane004"), [""])
sketch22.MapMode = "FlatFace"
sketch22.addGeometry(Part.LineSegment(Vector(3655.184984, -2140.427828, 0), Vector(3655.184984, -1175.427828, 0)), False)
sketch22.addGeometry(Part.LineSegment(Vector(3655.184984, -1175.427828, 0), Vector(2740.184984, -1175.427828, 0)), False)
sketch22.addGeometry(Part.LineSegment(Vector(2740.184984, -1175.427828, 0), Vector(3655.184984, -2140.427828, 0)), False)
sketch22.addConstraint(Sketcher.Constraint("Coincident", 0, 2, 1, 1))
sketch22.addConstraint(Sketcher.Constraint("Coincident", 1, 2, 2, 1))
sketch22.addConstraint(Sketcher.Constraint("Coincident", 2, 2, 0, 1))
sketch22.addConstraint(Sketcher.Constraint("Vertical", 0))
sketch22.addConstraint(Sketcher.Constraint("Horizontal", 1))
sketch22.addConstraint(Sketcher.Constraint("DistanceX", 1, 2, 1, 1, 915.0))
sketch22.addConstraint(Sketcher.Constraint("DistanceY", 0, 1, 0, 2, 965.0))
sketch22.addConstraint(Sketcher.Constraint("DistanceX", -1, 1, 0, 2, 3655.184984))
sketch22.addConstraint(Sketcher.Constraint("DistanceY", 0, 2, -1, 1, 1175.427828))
pad14 = body5.newObject("PartDesign::Pad", "Pad013")
pad14.Profile = sketch22
pad14.Length = 2584

sketch23 = body5.newObject("Sketcher::SketchObject", "Sketch022")
sketch23.AttachmentSupport = (doc.getObject("XY_Plane004"), [""])
sketch23.MapMode = "FlatFace"
sketch23.addGeometry(Part.LineSegment(Vector(3655.184984, -1175.427828, 0), Vector(3655.184984, -210.427828, 0)), False)
sketch23.addGeometry(Part.LineSegment(Vector(3655.184984, -210.427828, 0), Vector(2740.184984, -1175.427828, 0)), False)
sketch23.addGeometry(Part.LineSegment(Vector(2740.184984, -1175.427828, 0), Vector(3655.184984, -1175.427828, 0)), False)
sketch23.addConstraint(Sketcher.Constraint("Coincident", 0, 2, 1, 1))
sketch23.addConstraint(Sketcher.Constraint("Coincident", 1, 2, 2, 1))
sketch23.addConstraint(Sketcher.Constraint("Coincident", 2, 2, 0, 1))
sketch23.addConstraint(Sketcher.Constraint("Vertical", 0))
sketch23.addConstraint(Sketcher.Constraint("Horizontal", 2))
sketch23.addConstraint(Sketcher.Constraint("DistanceX", 2, 1, 2, 2, 915.0))
sketch23.addConstraint(Sketcher.Constraint("DistanceY", 0, 1, 0, 2, 965.0))
sketch23.addConstraint(Sketcher.Constraint("DistanceX", -1, 1, 0, 2, 3655.184984))
sketch23.addConstraint(Sketcher.Constraint("DistanceY", 0, 2, -1, 1, 210.427828))
pad15 = body5.newObject("PartDesign::Pad", "Pad014")
pad15.Profile = sketch23
pad15.Length = 2772

sketch24 = body5.newObject("Sketcher::SketchObject", "Sketch023")
sketch24.AttachmentSupport = (doc.getObject("XY_Plane004"), [""])
sketch24.MapMode = "FlatFace"
sketch24.addGeometry(Part.LineSegment(Vector(3655.184984, -210.427828, 0), Vector(2740.184984, -210.427828, 0)), False)
sketch24.addGeometry(Part.LineSegment(Vector(2740.184984, -210.427828, 0), Vector(2740.184984, -1175.427828, 0)), False)
sketch24.addGeometry(Part.LineSegment(Vector(2740.184984, -1175.427828, 0), Vector(3655.184984, -210.427828, 0)), False)
sketch24.addConstraint(Sketcher.Constraint("Coincident", 0, 2, 1, 1))
sketch24.addConstraint(Sketcher.Constraint("Coincident", 1, 2, 2, 1))
sketch24.addConstraint(Sketcher.Constraint("Coincident", 2, 2, 0, 1))
sketch24.addConstraint(Sketcher.Constraint("Horizontal", 0))
sketch24.addConstraint(Sketcher.Constraint("Vertical", 1))
sketch24.addConstraint(Sketcher.Constraint("DistanceX", 0, 2, 0, 1, 915.0))
sketch24.addConstraint(Sketcher.Constraint("DistanceY", 1, 2, 1, 1, 965.0))
sketch24.addConstraint(Sketcher.Constraint("DistanceX", -1, 1, 0, 2, 2740.184984))
sketch24.addConstraint(Sketcher.Constraint("DistanceY", 0, 2, -1, 1, 210.427828))
pad16 = body5.newObject("PartDesign::Pad", "Pad015")
pad16.Profile = sketch24
pad16.Length = 2970

sketch25 = body5.newObject("Sketcher::SketchObject", "Sketch024")
sketch25.AttachmentSupport = (doc.getObject("XY_Plane004"), [""])
sketch25.MapMode = "FlatFace"
sketch25.addGeometry(Part.LineSegment(Vector(2520.184984, -210.427828, 0), Vector(2520.184984, -1125.427828, 0)), False)
sketch25.addGeometry(Part.LineSegment(Vector(2520.184984, -1125.427828, 0), Vector(2740.184984, -1125.427828, 0)), False)
sketch25.addGeometry(Part.LineSegment(Vector(2740.184984, -1125.427828, 0), Vector(2740.184984, -210.427828, 0)), False)
sketch25.addGeometry(Part.LineSegment(Vector(2740.184984, -210.427828, 0), Vector(2520.184984, -210.427828, 0)), False)
sketch25.addConstraint(Sketcher.Constraint("Coincident", 0, 2, 1, 1))
sketch25.addConstraint(Sketcher.Constraint("Coincident", 1, 2, 2, 1))
sketch25.addConstraint(Sketcher.Constraint("Coincident", 2, 2, 3, 1))
sketch25.addConstraint(Sketcher.Constraint("Coincident", 3, 2, 0, 1))
sketch25.addConstraint(Sketcher.Constraint("Vertical", 0))
sketch25.addConstraint(Sketcher.Constraint("Horizontal", 1))
sketch25.addConstraint(Sketcher.Constraint("Vertical", 2))
sketch25.addConstraint(Sketcher.Constraint("Horizontal", 3))
sketch25.addConstraint(Sketcher.Constraint("DistanceX", 1, 1, 1, 2, 220.0))
sketch25.addConstraint(Sketcher.Constraint("DistanceY", 0, 2, 0, 1, 915.0))
sketch25.addConstraint(Sketcher.Constraint("DistanceX", -1, 1, 0, 2, 2520.184984))
sketch25.addConstraint(Sketcher.Constraint("DistanceY", 0, 2, -1, 1, 1125.427828))
pad17 = body5.newObject("PartDesign::Pad", "Pad016")
pad17.Profile = sketch25
pad17.Length = 3168

sketch26 = body5.newObject("Sketcher::SketchObject", "Sketch025")
sketch26.AttachmentSupport = (doc.getObject("XY_Plane004"), [""])
sketch26.MapMode = "FlatFace"
sketch26.addGeometry(Part.LineSegment(Vector(2300.184984, -210.427828, 0), Vector(2300.184984, -1125.427828, 0)), False)
sketch26.addGeometry(Part.LineSegment(Vector(2300.184984, -1125.427828, 0), Vector(2520.184984, -1125.427828, 0)), False)
sketch26.addGeometry(Part.LineSegment(Vector(2520.184984, -1125.427828, 0), Vector(2520.184984, -210.427828, 0)), False)
sketch26.addGeometry(Part.LineSegment(Vector(2520.184984, -210.427828, 0), Vector(2300.184984, -210.427828, 0)), False)
sketch26.addConstraint(Sketcher.Constraint("Coincident", 0, 2, 1, 1))
sketch26.addConstraint(Sketcher.Constraint("Coincident", 1, 2, 2, 1))
sketch26.addConstraint(Sketcher.Constraint("Coincident", 2, 2, 3, 1))
sketch26.addConstraint(Sketcher.Constraint("Coincident", 3, 2, 0, 1))
sketch26.addConstraint(Sketcher.Constraint("Vertical", 0))
sketch26.addConstraint(Sketcher.Constraint("Horizontal", 1))
sketch26.addConstraint(Sketcher.Constraint("Vertical", 2))
sketch26.addConstraint(Sketcher.Constraint("Horizontal", 3))
sketch26.addConstraint(Sketcher.Constraint("DistanceX", 1, 1, 1, 2, 220.0))
sketch26.addConstraint(Sketcher.Constraint("DistanceY", 0, 2, 0, 1, 915.0))
sketch26.addConstraint(Sketcher.Constraint("DistanceX", -1, 1, 0, 2, 2300.184984))
sketch26.addConstraint(Sketcher.Constraint("DistanceY", 0, 2, -1, 1, 1125.427828))
pad18 = body5.newObject("PartDesign::Pad", "Pad017")
pad18.Profile = sketch26
pad18.Length = 3366

sketch27 = body5.newObject("Sketcher::SketchObject", "Sketch026")
sketch27.AttachmentSupport = (doc.getObject("XY_Plane004"), [""])
sketch27.MapMode = "FlatFace"
sketch27.addGeometry(Part.LineSegment(Vector(2080.184984, -210.427828, 0), Vector(2080.184984, -1125.427828, 0)), False)
sketch27.addGeometry(Part.LineSegment(Vector(2080.184984, -1125.427828, 0), Vector(2300.184984, -1125.427828, 0)), False)
sketch27.addGeometry(Part.LineSegment(Vector(2300.184984, -1125.427828, 0), Vector(2300.184984, -210.427828, 0)), False)
sketch27.addGeometry(Part.LineSegment(Vector(2300.184984, -210.427828, 0), Vector(2080.184984, -210.427828, 0)), False)
sketch27.addConstraint(Sketcher.Constraint("Coincident", 0, 2, 1, 1))
sketch27.addConstraint(Sketcher.Constraint("Coincident", 1, 2, 2, 1))
sketch27.addConstraint(Sketcher.Constraint("Coincident", 2, 2, 3, 1))
sketch27.addConstraint(Sketcher.Constraint("Coincident", 3, 2, 0, 1))
sketch27.addConstraint(Sketcher.Constraint("Vertical", 0))
sketch27.addConstraint(Sketcher.Constraint("Horizontal", 1))
sketch27.addConstraint(Sketcher.Constraint("Vertical", 2))
sketch27.addConstraint(Sketcher.Constraint("Horizontal", 3))
sketch27.addConstraint(Sketcher.Constraint("DistanceX", 1, 1, 1, 2, 220.0))
sketch27.addConstraint(Sketcher.Constraint("DistanceY", 0, 2, 0, 1, 915.0))
sketch27.addConstraint(Sketcher.Constraint("DistanceX", -1, 1, 0, 2, 2080.184984))
sketch27.addConstraint(Sketcher.Constraint("DistanceY", 0, 2, -1, 1, 1125.427828))
pad19 = body5.newObject("PartDesign::Pad", "Pad018")
pad19.Profile = sketch27
pad19.Length = 3564

sketch28 = body5.newObject("Sketcher::SketchObject", "Sketch027")
sketch28.AttachmentSupport = (doc.getObject("XY_Plane004"), [""])
sketch28.MapMode = "FlatFace"
sketch28.addGeometry(Part.LineSegment(Vector(1860.184984, -210.427828, 0), Vector(1860.184984, -1125.427828, 0)), False)
sketch28.addGeometry(Part.LineSegment(Vector(1860.184984, -1125.427828, 0), Vector(2080.184984, -1125.427828, 0)), False)
sketch28.addGeometry(Part.LineSegment(Vector(2080.184984, -1125.427828, 0), Vector(2080.184984, -210.427828, 0)), False)
sketch28.addGeometry(Part.LineSegment(Vector(2080.184984, -210.427828, 0), Vector(1860.184984, -210.427828, 0)), False)
sketch28.addConstraint(Sketcher.Constraint("Coincident", 0, 2, 1, 1))
sketch28.addConstraint(Sketcher.Constraint("Coincident", 1, 2, 2, 1))
sketch28.addConstraint(Sketcher.Constraint("Coincident", 2, 2, 3, 1))
sketch28.addConstraint(Sketcher.Constraint("Coincident", 3, 2, 0, 1))
sketch28.addConstraint(Sketcher.Constraint("Vertical", 0))
sketch28.addConstraint(Sketcher.Constraint("Horizontal", 1))
sketch28.addConstraint(Sketcher.Constraint("Vertical", 2))
sketch28.addConstraint(Sketcher.Constraint("Horizontal", 3))
sketch28.addConstraint(Sketcher.Constraint("DistanceX", 1, 1, 1, 2, 220.0))
sketch28.addConstraint(Sketcher.Constraint("DistanceY", 0, 2, 0, 1, 915.0))
sketch28.addConstraint(Sketcher.Constraint("DistanceX", -1, 1, 0, 2, 1860.184984))
sketch28.addConstraint(Sketcher.Constraint("DistanceY", 0, 2, -1, 1, 1125.427828))
pad20 = body5.newObject("PartDesign::Pad", "Pad019")
pad20.Profile = sketch28
pad20.Length = 3762
body6 = doc.addObject("PartDesign::Body", "Body005")

sketch29 = body6.newObject("Sketcher::SketchObject", "Sketch028")
sketch29.AttachmentSupport = (doc.getObject("YZ_Plane005"), [""])
sketch29.MapMode = "FlatFace"
sketch29.AttachmentOffset = App.Placement(Vector(0, 0, -2271.486187), App.Rotation())
sketch29.addGeometry(Part.Circle(Vector(0, 1604.572654, 0), Vector(0, 0, 1), 19), False)
sketch29.addGeometry(Part.Circle(Vector(0, 1604.572654, 0), Vector(0, 0, 1), 15.5), False)
sketch29.addConstraint(Sketcher.Constraint("Coincident", 1, 3, 0, 3))
sketch29.addConstraint(Sketcher.Constraint("PointOnObject", 0, 3, -2))
sketch29.addConstraint(Sketcher.Constraint("Diameter", 0, 38.0))
sketch29.addConstraint(Sketcher.Constraint("Diameter", 1, 31.0))
sketch29.addConstraint(Sketcher.Constraint("DistanceY", -1, 1, 0, 3, 1604.572654))

sketch30 = body6.newObject("Sketcher::SketchObject", "Sketch029")
sketch30.AttachmentSupport = (doc.getObject("XY_Plane005"), [""])
sketch30.MapMode = "FlatFace"
sketch30.AttachmentOffset = App.Placement(Vector(0, 0, 1604.572654), App.Rotation())
sketch30.addGeometry(Part.LineSegment(Vector(-2271.486187, 0, 0), Vector(-2221.486187, 0, 0)), False)
sketch30.addConstraint(Sketcher.Constraint("Horizontal", 0))
sketch30.addConstraint(Sketcher.Constraint("PointOnObject", 0, 1, -1))
sketch30.addConstraint(Sketcher.Constraint("DistanceX", 0, 1, 0, 2, 50.0))
sketch30.addConstraint(Sketcher.Constraint("DistanceX", 0, 1, -1, 1, 2271.486187))
doc.recompute()

additivepipe5 = body6.newObject("PartDesign::AdditivePipe", "AdditivePipe004")
additivepipe5.Profile = sketch29
additivepipe5.Spine = (sketch30, ["Edge1"])
body7 = doc.addObject("PartDesign::Body", "Body006")

sketch31 = body7.newObject("Sketcher::SketchObject", "Sketch030")
sketch31.AttachmentSupport = (doc.getObject("YZ_Plane006"), [""])
sketch31.MapMode = "FlatFace"
sketch31.AttachmentOffset = App.Placement(Vector(0, 0, -1672.014952), App.Rotation())
sketch31.addGeometry(Part.Circle(Vector(0, 1604.572654, 0), Vector(0, 0, 1), 19), False)
sketch31.addGeometry(Part.Circle(Vector(0, 1604.572654, 0), Vector(0, 0, 1), 15.5), False)
sketch31.addConstraint(Sketcher.Constraint("Coincident", 1, 3, 0, 3))
sketch31.addConstraint(Sketcher.Constraint("PointOnObject", 0, 3, -2))
sketch31.addConstraint(Sketcher.Constraint("Diameter", 0, 38.0))
sketch31.addConstraint(Sketcher.Constraint("Diameter", 1, 31.0))
sketch31.addConstraint(Sketcher.Constraint("DistanceY", -1, 1, 0, 3, 1604.572654))

sketch32 = body7.newObject("Sketcher::SketchObject", "Sketch031")
sketch32.AttachmentSupport = (doc.getObject("XZ_Plane006"), [""])
sketch32.MapMode = "FlatFace"
sketch32.addGeometry(Part.ArcOfCircle(Part.Circle(Vector(-1679.088923, 1804.447512, 0), Vector(0, 0, 1), 200), math.radians(-87.973034), math.radians(4.996717)), False)
sketch32.addConstraint(Sketcher.Constraint("Radius", 0, 200.0))
sketch32.addConstraint(Sketcher.Constraint("DistanceY", -1, 1, 0, 3, 1804.447512))
sketch32.addConstraint(Sketcher.Constraint("DistanceX", 0, 1, -1, 1, 1672.014952))
sketch32.addConstraint(Sketcher.Constraint("DistanceX", 0, 3, 0, 1, 7.073971))
sketch32.addConstraint(Sketcher.Constraint("DistanceX", 0, 3, 0, 2, 199.239938))
doc.recompute()

additivepipe6 = body7.newObject("PartDesign::AdditivePipe", "AdditivePipe005")
additivepipe6.Profile = sketch31
additivepipe6.Spine = (sketch32, ["Edge1"])
body8 = doc.addObject("PartDesign::Body", "Body007")

sketch33 = body8.newObject("Sketcher::SketchObject", "Sketch032")
sketch33.AttachmentSupport = (doc.getObject("YZ_Plane007"), [""])
sketch33.MapMode = "FlatFace"
sketch33.AttachmentOffset = App.Placement(Vector(0, 0, -2271.486187), App.Rotation())
sketch33.addGeometry(Part.Circle(Vector(0, 1161.667347, 0), Vector(0, 0, 1), 19), False)
sketch33.addGeometry(Part.Circle(Vector(0, 1161.667347, 0), Vector(0, 0, 1), 15.5), False)
sketch33.addConstraint(Sketcher.Constraint("Coincident", 1, 3, 0, 3))
sketch33.addConstraint(Sketcher.Constraint("PointOnObject", 0, 3, -2))
sketch33.addConstraint(Sketcher.Constraint("Diameter", 0, 38.0))
sketch33.addConstraint(Sketcher.Constraint("Diameter", 1, 31.0))
sketch33.addConstraint(Sketcher.Constraint("DistanceY", -1, 1, 0, 3, 1161.667347))

sketch34 = body8.newObject("Sketcher::SketchObject", "Sketch033")
sketch34.AttachmentSupport = (doc.getObject("XY_Plane007"), [""])
sketch34.MapMode = "FlatFace"
sketch34.AttachmentOffset = App.Placement(Vector(0, 0, 1161.667347), App.Rotation())
sketch34.addGeometry(Part.LineSegment(Vector(-2271.486187, 0, 0), Vector(-271.486187, 0, 0)), False)
sketch34.addConstraint(Sketcher.Constraint("Horizontal", 0))
sketch34.addConstraint(Sketcher.Constraint("PointOnObject", 0, 1, -1))
sketch34.addConstraint(Sketcher.Constraint("DistanceX", 0, 1, 0, 2, 2000.0))
sketch34.addConstraint(Sketcher.Constraint("DistanceX", 0, 1, -1, 1, 2271.486187))
doc.recompute()

additivepipe7 = body8.newObject("PartDesign::AdditivePipe", "AdditivePipe006")
additivepipe7.Profile = sketch33
additivepipe7.Spine = (sketch34, ["Edge1"])

doc.recompute()
